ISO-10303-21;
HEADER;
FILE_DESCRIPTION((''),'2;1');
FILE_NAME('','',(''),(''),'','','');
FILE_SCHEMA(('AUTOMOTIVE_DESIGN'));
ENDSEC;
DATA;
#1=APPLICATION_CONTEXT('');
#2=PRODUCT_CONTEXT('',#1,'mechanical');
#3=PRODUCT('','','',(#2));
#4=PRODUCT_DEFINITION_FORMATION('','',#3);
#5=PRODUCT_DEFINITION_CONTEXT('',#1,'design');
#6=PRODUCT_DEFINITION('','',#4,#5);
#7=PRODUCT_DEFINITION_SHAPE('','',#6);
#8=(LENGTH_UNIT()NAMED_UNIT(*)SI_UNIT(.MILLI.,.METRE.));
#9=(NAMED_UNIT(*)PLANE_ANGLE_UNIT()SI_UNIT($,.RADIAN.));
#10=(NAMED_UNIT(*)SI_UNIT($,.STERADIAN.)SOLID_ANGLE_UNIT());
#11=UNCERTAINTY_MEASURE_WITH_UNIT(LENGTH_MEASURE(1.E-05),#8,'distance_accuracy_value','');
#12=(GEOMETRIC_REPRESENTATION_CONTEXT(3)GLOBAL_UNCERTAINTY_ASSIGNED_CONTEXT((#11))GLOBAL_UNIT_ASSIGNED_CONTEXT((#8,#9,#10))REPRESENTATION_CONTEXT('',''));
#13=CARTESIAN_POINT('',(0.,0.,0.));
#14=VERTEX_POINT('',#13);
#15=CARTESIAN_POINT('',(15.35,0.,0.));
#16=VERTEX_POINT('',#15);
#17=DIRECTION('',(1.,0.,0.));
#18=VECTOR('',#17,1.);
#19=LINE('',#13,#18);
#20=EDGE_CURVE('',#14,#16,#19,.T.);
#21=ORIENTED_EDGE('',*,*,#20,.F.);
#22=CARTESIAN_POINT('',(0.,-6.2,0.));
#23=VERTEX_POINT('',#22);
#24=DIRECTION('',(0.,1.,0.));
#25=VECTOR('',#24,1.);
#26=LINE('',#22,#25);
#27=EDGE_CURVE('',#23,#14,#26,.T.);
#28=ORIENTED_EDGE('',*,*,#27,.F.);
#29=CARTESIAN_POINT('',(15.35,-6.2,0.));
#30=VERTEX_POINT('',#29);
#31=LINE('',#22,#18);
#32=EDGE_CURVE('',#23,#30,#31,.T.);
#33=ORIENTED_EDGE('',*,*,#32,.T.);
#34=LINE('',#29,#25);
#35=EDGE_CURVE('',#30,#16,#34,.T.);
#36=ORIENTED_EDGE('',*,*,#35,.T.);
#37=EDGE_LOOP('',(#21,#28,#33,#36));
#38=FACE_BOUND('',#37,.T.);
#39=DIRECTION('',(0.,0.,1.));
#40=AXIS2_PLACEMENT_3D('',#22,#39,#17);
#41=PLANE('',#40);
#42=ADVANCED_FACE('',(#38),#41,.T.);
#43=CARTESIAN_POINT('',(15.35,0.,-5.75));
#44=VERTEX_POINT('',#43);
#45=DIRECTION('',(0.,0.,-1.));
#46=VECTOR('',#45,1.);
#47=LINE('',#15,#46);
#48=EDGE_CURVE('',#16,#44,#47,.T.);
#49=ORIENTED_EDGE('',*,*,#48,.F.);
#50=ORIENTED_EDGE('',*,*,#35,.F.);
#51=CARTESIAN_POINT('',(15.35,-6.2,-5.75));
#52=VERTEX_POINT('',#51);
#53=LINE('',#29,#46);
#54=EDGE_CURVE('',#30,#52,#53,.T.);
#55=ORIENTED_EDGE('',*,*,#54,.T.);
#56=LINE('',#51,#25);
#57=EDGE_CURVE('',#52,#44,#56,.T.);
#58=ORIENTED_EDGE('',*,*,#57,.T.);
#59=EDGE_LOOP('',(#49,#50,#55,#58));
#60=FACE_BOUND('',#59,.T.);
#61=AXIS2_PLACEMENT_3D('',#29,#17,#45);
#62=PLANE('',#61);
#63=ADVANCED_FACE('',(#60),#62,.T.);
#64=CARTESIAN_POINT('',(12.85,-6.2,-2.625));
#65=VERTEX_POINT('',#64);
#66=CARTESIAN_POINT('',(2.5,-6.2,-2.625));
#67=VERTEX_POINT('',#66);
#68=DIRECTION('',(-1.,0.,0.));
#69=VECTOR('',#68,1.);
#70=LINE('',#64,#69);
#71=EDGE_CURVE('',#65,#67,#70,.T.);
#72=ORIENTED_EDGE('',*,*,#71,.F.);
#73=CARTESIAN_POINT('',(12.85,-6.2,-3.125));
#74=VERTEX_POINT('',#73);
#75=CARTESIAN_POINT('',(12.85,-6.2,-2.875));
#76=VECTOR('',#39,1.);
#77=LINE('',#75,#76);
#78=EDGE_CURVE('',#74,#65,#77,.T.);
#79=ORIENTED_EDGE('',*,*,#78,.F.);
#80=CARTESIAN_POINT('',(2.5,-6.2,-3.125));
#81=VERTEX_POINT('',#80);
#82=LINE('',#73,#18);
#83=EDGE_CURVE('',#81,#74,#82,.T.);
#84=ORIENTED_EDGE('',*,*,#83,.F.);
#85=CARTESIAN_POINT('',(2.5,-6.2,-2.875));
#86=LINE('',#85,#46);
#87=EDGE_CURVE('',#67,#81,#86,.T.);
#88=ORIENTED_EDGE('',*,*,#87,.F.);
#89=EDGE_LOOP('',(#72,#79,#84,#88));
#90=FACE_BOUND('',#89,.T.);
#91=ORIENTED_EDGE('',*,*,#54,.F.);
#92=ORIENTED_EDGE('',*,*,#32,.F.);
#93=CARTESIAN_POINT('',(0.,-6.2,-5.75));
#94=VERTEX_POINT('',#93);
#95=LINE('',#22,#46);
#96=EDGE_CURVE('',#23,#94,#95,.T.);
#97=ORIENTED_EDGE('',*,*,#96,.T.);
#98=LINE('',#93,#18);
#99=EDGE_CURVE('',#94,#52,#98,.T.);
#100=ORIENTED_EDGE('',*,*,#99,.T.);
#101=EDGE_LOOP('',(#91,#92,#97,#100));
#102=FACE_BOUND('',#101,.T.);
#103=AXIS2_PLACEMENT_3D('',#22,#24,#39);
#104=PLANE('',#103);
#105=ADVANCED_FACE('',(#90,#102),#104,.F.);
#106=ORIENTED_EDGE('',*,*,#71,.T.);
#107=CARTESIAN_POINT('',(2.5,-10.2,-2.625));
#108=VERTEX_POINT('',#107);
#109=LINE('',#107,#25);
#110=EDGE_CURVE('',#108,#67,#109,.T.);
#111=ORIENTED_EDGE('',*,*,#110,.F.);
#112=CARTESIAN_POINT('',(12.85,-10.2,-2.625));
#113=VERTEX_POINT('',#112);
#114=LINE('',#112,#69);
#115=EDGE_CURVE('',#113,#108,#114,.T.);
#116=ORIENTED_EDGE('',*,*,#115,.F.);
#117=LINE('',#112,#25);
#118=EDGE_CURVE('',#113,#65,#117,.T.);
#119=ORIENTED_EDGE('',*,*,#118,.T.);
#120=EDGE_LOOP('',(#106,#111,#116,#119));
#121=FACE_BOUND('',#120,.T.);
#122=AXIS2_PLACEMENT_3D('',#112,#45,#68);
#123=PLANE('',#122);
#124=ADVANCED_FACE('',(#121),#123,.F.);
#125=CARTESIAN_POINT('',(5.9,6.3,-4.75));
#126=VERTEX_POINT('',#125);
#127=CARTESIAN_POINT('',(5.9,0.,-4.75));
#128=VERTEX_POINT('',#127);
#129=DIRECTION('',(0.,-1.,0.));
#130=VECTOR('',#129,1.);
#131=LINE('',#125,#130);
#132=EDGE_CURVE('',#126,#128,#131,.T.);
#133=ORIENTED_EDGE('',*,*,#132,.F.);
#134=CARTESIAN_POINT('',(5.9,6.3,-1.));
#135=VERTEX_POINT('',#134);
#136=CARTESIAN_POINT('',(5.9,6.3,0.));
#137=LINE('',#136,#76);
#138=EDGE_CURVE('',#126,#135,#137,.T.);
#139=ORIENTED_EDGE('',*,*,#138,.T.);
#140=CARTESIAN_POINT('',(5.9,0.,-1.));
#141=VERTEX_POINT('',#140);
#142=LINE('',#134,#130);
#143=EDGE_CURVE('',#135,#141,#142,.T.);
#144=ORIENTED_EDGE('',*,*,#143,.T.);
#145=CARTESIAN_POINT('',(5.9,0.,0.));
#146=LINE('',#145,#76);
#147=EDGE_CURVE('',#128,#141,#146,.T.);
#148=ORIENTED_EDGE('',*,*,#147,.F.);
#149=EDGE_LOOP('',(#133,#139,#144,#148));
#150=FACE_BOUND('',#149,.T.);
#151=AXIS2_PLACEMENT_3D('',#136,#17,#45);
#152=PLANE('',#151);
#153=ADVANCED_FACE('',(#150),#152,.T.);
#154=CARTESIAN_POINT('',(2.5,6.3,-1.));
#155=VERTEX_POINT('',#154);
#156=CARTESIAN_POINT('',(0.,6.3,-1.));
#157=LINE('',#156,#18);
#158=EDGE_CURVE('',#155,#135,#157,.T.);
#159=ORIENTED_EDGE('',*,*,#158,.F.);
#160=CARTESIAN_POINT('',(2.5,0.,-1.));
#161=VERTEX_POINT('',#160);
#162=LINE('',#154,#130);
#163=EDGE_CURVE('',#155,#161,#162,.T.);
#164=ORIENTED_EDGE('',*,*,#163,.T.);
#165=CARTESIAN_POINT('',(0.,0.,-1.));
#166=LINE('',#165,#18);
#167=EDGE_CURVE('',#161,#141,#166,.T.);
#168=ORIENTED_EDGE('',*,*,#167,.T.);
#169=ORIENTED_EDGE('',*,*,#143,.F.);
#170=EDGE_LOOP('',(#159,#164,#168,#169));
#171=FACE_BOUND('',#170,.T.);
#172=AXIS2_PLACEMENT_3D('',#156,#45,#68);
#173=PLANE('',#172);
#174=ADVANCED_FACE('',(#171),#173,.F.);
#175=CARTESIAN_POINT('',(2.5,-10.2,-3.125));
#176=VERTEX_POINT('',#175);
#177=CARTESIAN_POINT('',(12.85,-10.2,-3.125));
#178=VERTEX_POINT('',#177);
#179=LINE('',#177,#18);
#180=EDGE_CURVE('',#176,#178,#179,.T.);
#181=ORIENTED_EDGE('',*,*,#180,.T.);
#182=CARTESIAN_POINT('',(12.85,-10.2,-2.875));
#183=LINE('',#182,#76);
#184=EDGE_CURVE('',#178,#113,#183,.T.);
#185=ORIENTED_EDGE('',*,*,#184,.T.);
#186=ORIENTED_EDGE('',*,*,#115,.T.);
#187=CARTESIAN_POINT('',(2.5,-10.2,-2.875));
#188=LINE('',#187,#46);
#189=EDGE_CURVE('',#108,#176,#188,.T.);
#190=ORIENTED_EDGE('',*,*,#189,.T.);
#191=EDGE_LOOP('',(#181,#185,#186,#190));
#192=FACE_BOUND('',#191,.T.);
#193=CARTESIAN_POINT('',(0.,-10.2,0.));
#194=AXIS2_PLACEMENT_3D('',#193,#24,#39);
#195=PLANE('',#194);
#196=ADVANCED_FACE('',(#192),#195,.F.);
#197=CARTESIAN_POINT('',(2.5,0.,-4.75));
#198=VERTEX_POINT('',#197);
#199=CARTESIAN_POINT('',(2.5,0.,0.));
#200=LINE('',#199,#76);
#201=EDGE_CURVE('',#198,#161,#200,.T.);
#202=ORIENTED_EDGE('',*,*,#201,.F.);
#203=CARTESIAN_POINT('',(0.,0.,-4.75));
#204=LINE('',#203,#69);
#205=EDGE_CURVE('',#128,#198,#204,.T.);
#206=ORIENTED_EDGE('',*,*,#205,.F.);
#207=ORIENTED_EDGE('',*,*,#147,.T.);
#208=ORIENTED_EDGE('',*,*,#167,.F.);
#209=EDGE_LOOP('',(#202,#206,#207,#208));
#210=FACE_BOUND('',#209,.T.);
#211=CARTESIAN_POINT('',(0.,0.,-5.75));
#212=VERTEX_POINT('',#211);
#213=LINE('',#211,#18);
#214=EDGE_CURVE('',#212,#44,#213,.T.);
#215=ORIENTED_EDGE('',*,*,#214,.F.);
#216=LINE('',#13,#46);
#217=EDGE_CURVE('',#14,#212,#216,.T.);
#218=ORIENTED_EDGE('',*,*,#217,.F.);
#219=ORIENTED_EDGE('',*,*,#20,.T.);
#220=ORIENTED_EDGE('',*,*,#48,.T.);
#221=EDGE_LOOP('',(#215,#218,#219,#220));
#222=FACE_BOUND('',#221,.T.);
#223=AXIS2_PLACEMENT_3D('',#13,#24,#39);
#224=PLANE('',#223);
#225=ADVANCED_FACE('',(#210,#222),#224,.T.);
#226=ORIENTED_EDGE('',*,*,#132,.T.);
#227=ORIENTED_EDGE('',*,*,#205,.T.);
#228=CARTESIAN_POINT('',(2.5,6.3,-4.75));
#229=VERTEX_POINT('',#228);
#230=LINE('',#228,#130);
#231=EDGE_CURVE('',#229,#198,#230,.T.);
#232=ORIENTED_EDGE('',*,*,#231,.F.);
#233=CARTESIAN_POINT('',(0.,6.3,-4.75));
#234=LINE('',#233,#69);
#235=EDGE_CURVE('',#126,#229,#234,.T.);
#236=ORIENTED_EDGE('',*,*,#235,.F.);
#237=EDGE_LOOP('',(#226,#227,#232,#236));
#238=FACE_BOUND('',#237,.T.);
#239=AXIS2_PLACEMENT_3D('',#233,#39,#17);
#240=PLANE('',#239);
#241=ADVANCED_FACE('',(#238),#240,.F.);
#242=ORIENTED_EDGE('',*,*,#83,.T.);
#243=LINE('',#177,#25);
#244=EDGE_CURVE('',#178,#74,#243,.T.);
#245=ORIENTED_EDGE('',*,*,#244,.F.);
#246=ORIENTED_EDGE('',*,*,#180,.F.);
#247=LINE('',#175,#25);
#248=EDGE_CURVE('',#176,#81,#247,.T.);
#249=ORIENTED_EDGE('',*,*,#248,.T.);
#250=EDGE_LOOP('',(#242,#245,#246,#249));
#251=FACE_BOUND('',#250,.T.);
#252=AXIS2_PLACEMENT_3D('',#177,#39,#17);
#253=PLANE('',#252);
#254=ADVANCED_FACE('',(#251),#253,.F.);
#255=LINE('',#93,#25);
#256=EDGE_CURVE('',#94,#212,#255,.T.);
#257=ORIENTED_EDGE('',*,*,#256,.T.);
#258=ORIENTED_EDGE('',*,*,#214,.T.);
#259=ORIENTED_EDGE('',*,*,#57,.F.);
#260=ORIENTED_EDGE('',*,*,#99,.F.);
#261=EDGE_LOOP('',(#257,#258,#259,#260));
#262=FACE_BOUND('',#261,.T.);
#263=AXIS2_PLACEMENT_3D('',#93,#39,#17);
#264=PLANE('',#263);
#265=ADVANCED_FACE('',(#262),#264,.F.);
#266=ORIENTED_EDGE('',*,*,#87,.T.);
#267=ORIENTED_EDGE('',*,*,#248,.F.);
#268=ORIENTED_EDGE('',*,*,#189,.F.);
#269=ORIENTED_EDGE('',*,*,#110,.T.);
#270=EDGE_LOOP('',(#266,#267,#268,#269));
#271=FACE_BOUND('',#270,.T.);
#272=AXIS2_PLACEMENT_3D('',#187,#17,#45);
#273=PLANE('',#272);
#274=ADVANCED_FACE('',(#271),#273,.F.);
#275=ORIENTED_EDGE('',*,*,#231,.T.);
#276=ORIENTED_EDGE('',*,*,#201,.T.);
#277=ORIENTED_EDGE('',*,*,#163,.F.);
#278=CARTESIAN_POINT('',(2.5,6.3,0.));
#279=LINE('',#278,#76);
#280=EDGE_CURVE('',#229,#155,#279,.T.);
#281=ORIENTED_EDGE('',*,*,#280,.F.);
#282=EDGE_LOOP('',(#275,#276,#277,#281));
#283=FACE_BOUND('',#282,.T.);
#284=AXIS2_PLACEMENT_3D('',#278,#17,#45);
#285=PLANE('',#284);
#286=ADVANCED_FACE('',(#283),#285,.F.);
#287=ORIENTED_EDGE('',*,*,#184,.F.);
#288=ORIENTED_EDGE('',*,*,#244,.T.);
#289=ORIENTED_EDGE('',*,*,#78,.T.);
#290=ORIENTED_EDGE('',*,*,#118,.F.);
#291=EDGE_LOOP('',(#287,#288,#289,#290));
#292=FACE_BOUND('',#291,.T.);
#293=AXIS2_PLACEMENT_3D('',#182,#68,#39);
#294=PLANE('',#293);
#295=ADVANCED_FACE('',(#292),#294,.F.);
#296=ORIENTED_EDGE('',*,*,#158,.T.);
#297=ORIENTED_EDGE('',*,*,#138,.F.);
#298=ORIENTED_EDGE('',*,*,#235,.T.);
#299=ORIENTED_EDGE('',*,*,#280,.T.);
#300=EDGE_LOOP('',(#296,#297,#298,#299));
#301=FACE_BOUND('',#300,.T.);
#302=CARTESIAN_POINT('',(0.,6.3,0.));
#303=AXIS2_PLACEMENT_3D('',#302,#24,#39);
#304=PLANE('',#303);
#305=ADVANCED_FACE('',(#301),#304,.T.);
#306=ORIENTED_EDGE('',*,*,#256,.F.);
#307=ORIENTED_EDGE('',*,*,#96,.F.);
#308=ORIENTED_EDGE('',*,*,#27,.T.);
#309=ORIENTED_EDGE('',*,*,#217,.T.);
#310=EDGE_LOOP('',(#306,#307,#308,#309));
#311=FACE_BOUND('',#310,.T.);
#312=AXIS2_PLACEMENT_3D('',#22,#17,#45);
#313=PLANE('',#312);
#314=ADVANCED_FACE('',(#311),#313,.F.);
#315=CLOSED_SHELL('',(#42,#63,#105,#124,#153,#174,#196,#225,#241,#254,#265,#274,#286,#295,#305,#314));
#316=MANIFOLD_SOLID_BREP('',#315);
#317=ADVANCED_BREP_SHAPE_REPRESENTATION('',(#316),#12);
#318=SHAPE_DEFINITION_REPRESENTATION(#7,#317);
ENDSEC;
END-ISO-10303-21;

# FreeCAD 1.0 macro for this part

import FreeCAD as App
import Part
import Sketcher

V = App.Vector
Q = App.Units.Quantity

doc = App.newDocument("Part")
body = doc.addObject("PartDesign::Body", "Body")

# Sketch on XZ plane
sketch1 = body.newObject("Sketcher::SketchObject", "Sketch")
sketch1.AttachmentSupport = (doc.getObject("XZ_Plane"), [""])
sketch1.MapMode = "FlatFace"
sketch1.addGeometry(Part.LineSegment(V(0, -6, 0), V(0, 0, 0)), False)
sketch1.addGeometry(Part.LineSegment(V(0, 0, 0), V(15, 0, 0)), False)
sketch1.addGeometry(Part.LineSegment(V(15, 0, 0), V(15, -6, 0)), False)
sketch1.addGeometry(Part.LineSegment(V(15, -6, 0), V(0, -6, 0)), False)
sketch1.addConstraint(Sketcher.Constraint("Coincident", 0, 2, 1, 1))
sketch1.addConstraint(Sketcher.Constraint("Coincident", 1, 2, 2, 1))
sketch1.addConstraint(Sketcher.Constraint("Coincident", 2, 2, 3, 1))
sketch1.addConstraint(Sketcher.Constraint("Coincident", 3, 2, 0, 1))
sketch1.addConstraint(Sketcher.Constraint("Vertical", 0))
sketch1.addConstraint(Sketcher.Constraint("Horizontal", 1))
sketch1.addConstraint(Sketcher.Constraint("Vertical", 2))
sketch1.addConstraint(Sketcher.Constraint("Horizontal", 3))
sketch1.addConstraint(Sketcher.Constraint("Coincident", 0, 2, -1, 1))
sketch1.addConstraint(Sketcher.Constraint("DistanceX", 1, 1, 1, 2, Q("15.35 mm")))
sketch1.addConstraint(Sketcher.Constraint("DistanceY", 0, 1, 0, 2, Q("5.75 mm")))
pad1 = body.newObject("PartDesign::Pad", "Pad")
pad1.Profile = sketch1
pad1.Length = 6.2

# Sketch on XZ plane
sketch2 = body.newObject("Sketcher::SketchObject", "Sketch001")
sketch2.AttachmentSupport = (doc.getObject("XZ_Plane"), [""])
sketch2.MapMode = "FlatFace"
sketch2.addGeometry(Part.LineSegment(V(2.5, -4.8, 0), V(2.5, -1, 0)), False)
sketch2.addGeometry(Part.LineSegment(V(2.5, -1, 0), V(5.9, -1, 0)), False)
sketch2.addGeometry(Part.LineSegment(V(5.9, -1, 0), V(5.9, -4.8, 0)), False)
sketch2.addGeometry(Part.LineSegment(V(5.9, -4.8, 0), V(2.5, -4.8, 0)), False)
sketch2.addConstraint(Sketcher.Constraint("Coincident", 0, 2, 1, 1))
sketch2.addConstraint(Sketcher.Constraint("Coincident", 1, 2, 2, 1))
sketch2.addConstraint(Sketcher.Constraint("Coincident", 2, 2, 3, 1))
sketch2.addConstraint(Sketcher.Constraint("Coincident", 3, 2, 0, 1))
sketch2.addConstraint(Sketcher.Constraint("Vertical", 0))
sketch2.addConstraint(Sketcher.Constraint("Horizontal", 1))
sketch2.addConstraint(Sketcher.Constraint("Vertical", 2))
sketch2.addConstraint(Sketcher.Constraint("Horizontal", 3))
sketch2.addConstraint(Sketcher.Constraint("DistanceX", 1, 1, 1, 2, Q("3.4 mm")))
sketch2.addConstraint(Sketcher.Constraint("DistanceY", 0, 2, -1, 1, Q("1 mm")))
sketch2.addConstraint(Sketcher.Constraint("DistanceY", 0, 1, 0, 2, Q("3.75 mm")))
sketch2.addConstraint(Sketcher.Constraint("DistanceX", -1, 1, 0, 2, Q("2.5 mm")))
pad2 = body.newObject("PartDesign::Pad", "Pad001")
pad2.Profile = sketch2
pad2.Length = 6.3
pad2.Reversed = True

# Sketch on XZ plane
sketch3 = body.newObject("Sketcher::SketchObject", "Sketch002")
sketch3.AttachmentSupport = (doc.getObject("XZ_Plane"), [""])
sketch3.MapMode = "FlatFace"
sketch3.AttachmentOffset = App.Placement(V(0, 0, 6.2), App.Rotation())
sketch3.addGeometry(Part.LineSegment(V(2.5, -2.6, 0), V(2.5, -3.1, 0)), False)
sketch3.addGeometry(Part.LineSegment(V(2.5, -3.1, 0), V(12.8, -3.1, 0)), False)
sketch3.addGeometry(Part.LineSegment(V(12.8, -3.1, 0), V(12.8, -2.6, 0)), False)
sketch3.addGeometry(Part.LineSegment(V(12.8, -2.6, 0), V(2.5, -2.6, 0)), False)
sketch3.addConstraint(Sketcher.Constraint("Coincident", 0, 2, 1, 1))
sketch3.addConstraint(Sketcher.Constraint("Coincident", 1, 2, 2, 1))
sketch3.addConstraint(Sketcher.Constraint("Coincident", 2, 2, 3, 1))
sketch3.addConstraint(Sketcher.Constraint("Coincident", 3, 2, 0, 1))
sketch3.addConstraint(Sketcher.Constraint("Vertical", 0))
sketch3.addConstraint(Sketcher.Constraint("Horizontal", 1))
sketch3.addConstraint(Sketcher.Constraint("Vertical", 2))
sketch3.addConstraint(Sketcher.Constraint("Horizontal", 3))
sketch3.addConstraint(Sketcher.Constraint("DistanceY", 0, 2, 0, 1, Q("0.5 mm")))
sketch3.addConstraint(Sketcher.Constraint("DistanceX", 1, 1, 1, 2, Q("10.35 mm")))
sketch3.addConstraint(Sketcher.Constraint("DistanceX", -1, 1, 0, 2, Q("2.5 mm")))
sketch3.addConstraint(Sketcher.Constraint("DistanceY", 0, 2, -1, 1, Q("3.125 mm")))
pad3 = body.newObject("PartDesign::Pad", "Pad002")
pad3.Profile = sketch3
pad3.Length = 4

doc.recompute()
